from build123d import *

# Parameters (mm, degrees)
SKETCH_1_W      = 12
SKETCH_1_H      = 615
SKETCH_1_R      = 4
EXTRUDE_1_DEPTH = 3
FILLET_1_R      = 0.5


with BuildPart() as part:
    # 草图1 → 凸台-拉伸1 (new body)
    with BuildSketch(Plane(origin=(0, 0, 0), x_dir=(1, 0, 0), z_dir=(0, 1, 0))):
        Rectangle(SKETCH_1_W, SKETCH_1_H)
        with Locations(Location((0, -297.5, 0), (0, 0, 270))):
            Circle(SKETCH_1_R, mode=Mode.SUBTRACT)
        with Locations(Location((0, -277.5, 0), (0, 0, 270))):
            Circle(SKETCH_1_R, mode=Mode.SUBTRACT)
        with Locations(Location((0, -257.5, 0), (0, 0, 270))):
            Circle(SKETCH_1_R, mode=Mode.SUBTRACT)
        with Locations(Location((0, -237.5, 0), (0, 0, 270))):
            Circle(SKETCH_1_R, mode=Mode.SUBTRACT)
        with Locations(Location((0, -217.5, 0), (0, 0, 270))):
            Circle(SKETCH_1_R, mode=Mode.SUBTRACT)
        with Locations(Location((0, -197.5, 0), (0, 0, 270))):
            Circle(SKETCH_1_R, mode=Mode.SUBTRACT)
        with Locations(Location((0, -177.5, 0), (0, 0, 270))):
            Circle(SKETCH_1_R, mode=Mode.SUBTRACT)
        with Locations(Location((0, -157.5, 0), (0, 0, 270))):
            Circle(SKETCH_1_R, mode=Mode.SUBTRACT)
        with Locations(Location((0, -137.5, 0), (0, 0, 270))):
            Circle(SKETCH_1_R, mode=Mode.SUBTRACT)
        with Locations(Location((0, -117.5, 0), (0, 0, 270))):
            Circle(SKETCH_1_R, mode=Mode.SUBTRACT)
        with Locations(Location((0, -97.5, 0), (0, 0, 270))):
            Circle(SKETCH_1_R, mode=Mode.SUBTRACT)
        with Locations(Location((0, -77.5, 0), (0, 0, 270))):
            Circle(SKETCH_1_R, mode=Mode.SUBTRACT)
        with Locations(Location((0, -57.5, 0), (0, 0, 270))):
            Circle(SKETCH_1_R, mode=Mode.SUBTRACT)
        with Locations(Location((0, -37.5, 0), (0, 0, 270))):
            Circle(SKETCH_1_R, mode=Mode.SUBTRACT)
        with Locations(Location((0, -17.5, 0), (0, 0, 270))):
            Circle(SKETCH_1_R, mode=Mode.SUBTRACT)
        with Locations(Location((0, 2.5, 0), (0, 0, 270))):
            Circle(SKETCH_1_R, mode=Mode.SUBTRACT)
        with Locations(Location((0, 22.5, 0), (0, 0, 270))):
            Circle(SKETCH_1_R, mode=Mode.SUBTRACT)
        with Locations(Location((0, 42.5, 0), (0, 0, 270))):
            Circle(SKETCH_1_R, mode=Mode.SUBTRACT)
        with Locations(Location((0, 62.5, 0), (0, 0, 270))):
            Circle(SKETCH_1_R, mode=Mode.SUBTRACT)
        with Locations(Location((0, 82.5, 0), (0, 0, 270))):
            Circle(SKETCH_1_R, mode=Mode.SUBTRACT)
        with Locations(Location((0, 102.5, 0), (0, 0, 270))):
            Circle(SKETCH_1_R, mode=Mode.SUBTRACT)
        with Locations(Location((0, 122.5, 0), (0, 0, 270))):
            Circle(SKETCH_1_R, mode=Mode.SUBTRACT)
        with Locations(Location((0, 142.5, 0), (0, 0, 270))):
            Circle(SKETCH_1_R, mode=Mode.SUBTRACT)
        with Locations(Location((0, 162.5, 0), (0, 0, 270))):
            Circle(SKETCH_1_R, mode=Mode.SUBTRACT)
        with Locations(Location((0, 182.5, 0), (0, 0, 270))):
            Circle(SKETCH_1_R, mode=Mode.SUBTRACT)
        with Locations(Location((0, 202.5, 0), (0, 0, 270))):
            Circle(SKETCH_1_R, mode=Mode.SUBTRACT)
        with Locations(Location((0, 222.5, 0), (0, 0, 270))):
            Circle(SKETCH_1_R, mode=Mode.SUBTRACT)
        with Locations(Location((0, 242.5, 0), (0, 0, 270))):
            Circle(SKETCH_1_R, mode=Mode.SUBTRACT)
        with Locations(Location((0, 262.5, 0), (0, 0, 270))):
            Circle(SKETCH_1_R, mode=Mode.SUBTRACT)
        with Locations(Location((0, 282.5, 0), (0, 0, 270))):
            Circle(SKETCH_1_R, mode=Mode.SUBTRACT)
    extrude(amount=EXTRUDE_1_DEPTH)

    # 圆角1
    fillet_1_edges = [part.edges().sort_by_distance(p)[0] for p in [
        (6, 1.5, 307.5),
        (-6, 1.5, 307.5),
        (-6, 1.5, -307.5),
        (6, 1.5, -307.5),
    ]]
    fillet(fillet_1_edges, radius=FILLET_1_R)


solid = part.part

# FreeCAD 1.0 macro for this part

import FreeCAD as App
import Part
import Sketcher


def edges_at(feature, points):
    """Names of the edges that pass closest to the given points."""
    edges = feature.Shape.Edges
    near = lambda p: min(range(len(edges)), key=lambda i: edges[i].distToShape(Part.Vertex(*p))[0])
    return sorted({f"Edge{near(p) + 1}" for p in points})

doc = App.newDocument("Part")
body = doc.addObject("PartDesign::Body", "Body")

sketch1 = body.newObject("Sketcher::SketchObject", "Sketch")
sketch1.AttachmentSupport = (doc.getObject("XZ_Plane"), [""])
sketch1.MapMode = "FlatFace"
sketch1.addGeometry(Part.LineSegment(App.Vector(-6, -307.5, 0), App.Vector(-6, 307.5, 0)), False)
sketch1.addGeometry(Part.LineSegment(App.Vector(-6, 307.5, 0), App.Vector(6, 307.5, 0)), False)
sketch1.addGeometry(Part.LineSegment(App.Vector(6, 307.5, 0), App.Vector(6, -307.5, 0)), False)
sketch1.addGeometry(Part.LineSegment(App.Vector(6, -307.5, 0), App.Vector(-6, -307.5, 0)), False)
sketch1.addGeometry(Part.Circle(App.Vector(0, 297.5, 0), App.Vector(0, 0, 1), 4), False)
sketch1.addGeometry(Part.Circle(App.Vector(0, 277.5, 0), App.Vector(0, 0, 1), 4), False)
sketch1.addGeometry(Part.Circle(App.Vector(0, 257.5, 0), App.Vector(0, 0, 1), 4), False)
sketch1.addGeometry(Part.Circle(App.Vector(0, 237.5, 0), App.Vector(0, 0, 1), 4), False)
sketch1.addGeometry(Part.Circle(App.Vector(0, 217.5, 0), App.Vector(0, 0, 1), 4), False)
sketch1.addGeometry(Part.Circle(App.Vector(0, 197.5, 0), App.Vector(0, 0, 1), 4), False)
sketch1.addGeometry(Part.Circle(App.Vector(0, 177.5, 0), App.Vector(0, 0, 1), 4), False)
sketch1.addGeometry(Part.Circle(App.Vector(0, 157.5, 0), App.Vector(0, 0, 1), 4), False)
sketch1.addGeometry(Part.Circle(App.Vector(0, 137.5, 0), App.Vector(0, 0, 1), 4), False)
sketch1.addGeometry(Part.Circle(App.Vector(0, 117.5, 0), App.Vector(0, 0, 1), 4), False)
sketch1.addGeometry(Part.Circle(App.Vector(0, 97.5, 0), App.Vector(0, 0, 1), 4), False)
sketch1.addGeometry(Part.Circle(App.Vector(0, 77.5, 0), App.Vector(0, 0, 1), 4), False)
sketch1.addGeometry(Part.Circle(App.Vector(0, 57.5, 0), App.Vector(0, 0, 1), 4), False)
sketch1.addGeometry(Part.Circle(App.Vector(0, 37.5, 0), App.Vector(0, 0, 1), 4), False)
sketch1.addGeometry(Part.Circle(App.Vector(0, 17.5, 0), App.Vector(0, 0, 1), 4), False)
sketch1.addGeometry(Part.Circle(App.Vector(0, -2.5, 0), App.Vector(0, 0, 1), 4), False)
sketch1.addGeometry(Part.Circle(App.Vector(0, -22.5, 0), App.Vector(0, 0, 1), 4), False)
sketch1.addGeometry(Part.Circle(App.Vector(0, -42.5, 0), App.Vector(0, 0, 1), 4), False)
sketch1.addGeometry(Part.Circle(App.Vector(0, -62.5, 0), App.Vector(0, 0, 1), 4), False)
sketch1.addGeometry(Part.Circle(App.Vector(0, -82.5, 0), App.Vector(0, 0, 1), 4), False)
sketch1.addGeometry(Part.Circle(App.Vector(0, -102.5, 0), App.Vector(0, 0, 1), 4), False)
sketch1.addGeometry(Part.Circle(App.Vector(0, -122.5, 0), App.Vector(0, 0, 1), 4), False)
sketch1.addGeometry(Part.Circle(App.Vector(0, -142.5, 0), App.Vector(0, 0, 1), 4), False)
sketch1.addGeometry(Part.Circle(App.Vector(0, -162.5, 0), App.Vector(0, 0, 1), 4), False)
sketch1.addGeometry(Part.Circle(App.Vector(0, -182.5, 0), App.Vector(0, 0, 1), 4), False)
sketch1.addGeometry(Part.Circle(App.Vector(0, -202.5, 0), App.Vector(0, 0, 1), 4), False)
sketch1.addGeometry(Part.Circle(App.Vector(0, -222.5, 0), App.Vector(0, 0, 1), 4), False)
sketch1.addGeometry(Part.Circle(App.Vector(0, -242.5, 0), App.Vector(0, 0, 1), 4), False)
sketch1.addGeometry(Part.Circle(App.Vector(0, -262.5, 0), App.Vector(0, 0, 1), 4), False)
sketch1.addGeometry(Part.Circle(App.Vector(0, -282.5, 0), App.Vector(0, 0, 1), 4), False)
sketch1.addConstraint(Sketcher.Constraint("Coincident", 0, 2, 1, 1))
sketch1.addConstraint(Sketcher.Constraint("Coincident", 1, 2, 2, 1))
sketch1.addConstraint(Sketcher.Constraint("Coincident", 2, 2, 3, 1))
sketch1.addConstraint(Sketcher.Constraint("Coincident", 3, 2, 0, 1))
sketch1.addConstraint(Sketcher.Constraint("Vertical", 0))
sketch1.addConstraint(Sketcher.Constraint("Horizontal", 1))
sketch1.addConstraint(Sketcher.Constraint("Vertical", 2))
sketch1.addConstraint(Sketcher.Constraint("Horizontal", 3))
sketch1.addConstraint(Sketcher.Constraint("Equal", 4, 5))
sketch1.addConstraint(Sketcher.Constraint("Equal", 5, 6))
sketch1.addConstraint(Sketcher.Constraint("Equal", 6, 7))
sketch1.addConstraint(Sketcher.Constraint("Equal", 7, 8))
sketch1.addConstraint(Sketcher.Constraint("Equal", 8, 9))
sketch1.addConstraint(Sketcher.Constraint("Equal", 9, 10))
sketch1.addConstraint(Sketcher.Constraint("Equal", 10, 11))
sketch1.addConstraint(Sketcher.Constraint("Equal", 11, 12))
sketch1.addConstraint(Sketcher.Constraint("Equal", 12, 13))
sketch1.addConstraint(Sketcher.Constraint("Equal", 13, 14))
sketch1.addConstraint(Sketcher.Constraint("Equal", 14, 15))
sketch1.addConstraint(Sketcher.Constraint("Equal", 15, 16))
sketch1.addConstraint(Sketcher.Constraint("Equal", 16, 17))
sketch1.addConstraint(Sketcher.Constraint("Equal", 17, 18))
sketch1.addConstraint(Sketcher.Constraint("Equal", 18, 19))
sketch1.addConstraint(Sketcher.Constraint("Equal", 19, 20))
sketch1.addConstraint(Sketcher.Constraint("Equal", 20, 21))
sketch1.addConstraint(Sketcher.Constraint("Equal", 21, 22))
sketch1.addConstraint(Sketcher.Constraint("Equal", 22, 23))
sketch1.addConstraint(Sketcher.Constraint("Equal", 23, 24))
sketch1.addConstraint(Sketcher.Constraint("Equal", 24, 25))
sketch1.addConstraint(Sketcher.Constraint("Equal", 25, 26))
sketch1.addConstraint(Sketcher.Constraint("Equal", 26, 27))
sketch1.addConstraint(Sketcher.Constraint("Equal", 27, 28))
sketch1.addConstraint(Sketcher.Constraint("Equal", 28, 29))
sketch1.addConstraint(Sketcher.Constraint("Equal", 29, 30))
sketch1.addConstraint(Sketcher.Constraint("Equal", 30, 31))
sketch1.addConstraint(Sketcher.Constraint("Equal", 31, 32))
sketch1.addConstraint(Sketcher.Constraint("Equal", 32, 33))
sketch1.addConstraint(Sketcher.Constraint("Symmetric", 0, 2, 2, 2, -1, 1))
sketch1.addConstraint(Sketcher.Constraint("PointOnObject", 4, 3, -2))
sketch1.addConstraint(Sketcher.Constraint("PointOnObject", 5, 3, -2))
sketch1.addConstraint(Sketcher.Constraint("PointOnObject", 6, 3, -2))
sketch1.addConstraint(Sketcher.Constraint("PointOnObject", 7, 3, -2))
sketch1.addConstraint(Sketcher.Constraint("PointOnObject", 8, 3, -2))
sketch1.addConstraint(Sketcher.Constraint("PointOnObject", 9, 3, -2))
sketch1.addConstraint(Sketcher.Constraint("PointOnObject", 10, 3, -2))
sketch1.addConstraint(Sketcher.Constraint("PointOnObject", 11, 3, -2))
sketch1.addConstraint(Sketcher.Constraint("PointOnObject", 12, 3, -2))
sketch1.addConstraint(Sketcher.Constraint("PointOnObject", 13, 3, -2))
sketch1.addConstraint(Sketcher.Constraint("PointOnObject", 14, 3, -2))
sketch1.addConstraint(Sketcher.Constraint("PointOnObject", 15, 3, -2))
sketch1.addConstraint(Sketcher.Constraint("PointOnObject", 16, 3, -2))
sketch1.addConstraint(Sketcher.Constraint("PointOnObject", 17, 3, -2))
sketch1.addConstraint(Sketcher.Constraint("PointOnObject", 18, 3, -2))
sketch1.addConstraint(Sketcher.Constraint("PointOnObject", 19, 3, -2))
sketch1.addConstraint(Sketcher.Constraint("PointOnObject", 20, 3, -2))
sketch1.addConstraint(Sketcher.Constraint("PointOnObject", 21, 3, -2))
sketch1.addConstraint(Sketcher.Constraint("PointOnObject", 22, 3, -2))
sketch1.addConstraint(Sketcher.Constraint("PointOnObject", 23, 3, -2))
sketch1.addConstraint(Sketcher.Constraint("PointOnObject", 24, 3, -2))
sketch1.addConstraint(Sketcher.Constraint("PointOnObject", 25, 3, -2))
sketch1.addConstraint(Sketcher.Constraint("PointOnObject", 26, 3, -2))
sketch1.addConstraint(Sketcher.Constraint("PointOnObject", 27, 3, -2))
sketch1.addConstraint(Sketcher.Constraint("PointOnObject", 28, 3, -2))
sketch1.addConstraint(Sketcher.Constraint("PointOnObject", 29, 3, -2))
sketch1.addConstraint(Sketcher.Constraint("PointOnObject", 30, 3, -2))
sketch1.addConstraint(Sketcher.Constraint("PointOnObject", 31, 3, -2))
sketch1.addConstraint(Sketcher.Constraint("PointOnObject", 32, 3, -2))
sketch1.addConstraint(Sketcher.Constraint("PointOnObject", 33, 3, -2))
sketch1.addConstraint(Sketcher.Constraint("Diameter", 4, 8.0))
sketch1.addConstraint(Sketcher.Constraint("DistanceX", 1, 1, 1, 2, 12.0))
sketch1.addConstraint(Sketcher.Constraint("DistanceY", 0, 1, 0, 2, 615.0))
sketch1.addConstraint(Sketcher.Constraint("DistanceY", 5, 3, 4, 3, 20.0))
sketch1.addConstraint(Sketcher.Constraint("DistanceY", 6, 3, 5, 3, 20.0))
sketch1.addConstraint(Sketcher.Constraint("DistanceY", 7, 3, 6, 3, 20.0))
sketch1.addConstraint(Sketcher.Constraint("DistanceY", 8, 3, 7, 3, 20.0))
sketch1.addConstraint(Sketcher.Constraint("DistanceY", 9, 3, 8, 3, 20.0))
sketch1.addConstraint(Sketcher.Constraint("DistanceY", 10, 3, 9, 3, 20.0))
sketch1.addConstraint(Sketcher.Constraint("DistanceY", 11, 3, 10, 3, 20.0))
sketch1.addConstraint(Sketcher.Constraint("DistanceY", 12, 3, 11, 3, 20.0))
sketch1.addConstraint(Sketcher.Constraint("DistanceY", 13, 3, 12, 3, 20.0))
sketch1.addConstraint(Sketcher.Constraint("DistanceY", 14, 3, 13, 3, 20.0))
sketch1.addConstraint(Sketcher.Constraint("DistanceY", 15, 3, 14, 3, 20.0))
sketch1.addConstraint(Sketcher.Constraint("DistanceY", 16, 3, 15, 3, 20.0))
sketch1.addConstraint(Sketcher.Constraint("DistanceY", 17, 3, 16, 3, 20.0))
sketch1.addConstraint(Sketcher.Constraint("DistanceY", 18, 3, 17, 3, 20.0))
sketch1.addConstraint(Sketcher.Constraint("DistanceY", 19, 3, 18, 3, 20.0))
sketch1.addConstraint(Sketcher.Constraint("DistanceY", 20, 3, 19, 3, 20.0))
sketch1.addConstraint(Sketcher.Constraint("DistanceY", 21, 3, 20, 3, 20.0))
sketch1.addConstraint(Sketcher.Constraint("DistanceY", 22, 3, 21, 3, 20.0))
sketch1.addConstraint(Sketcher.Constraint("DistanceY", 23, 3, 22, 3, 20.0))
sketch1.addConstraint(Sketcher.Constraint("DistanceY", 24, 3, 23, 3, 20.0))
sketch1.addConstraint(Sketcher.Constraint("DistanceY", 25, 3, 24, 3, 20.0))
sketch1.addConstraint(Sketcher.Constraint("DistanceY", 26, 3, 25, 3, 20.0))
sketch1.addConstraint(Sketcher.Constraint("DistanceY", 27, 3, 26, 3, 20.0))
sketch1.addConstraint(Sketcher.Constraint("DistanceY", 28, 3, 27, 3, 20.0))
sketch1.addConstraint(Sketcher.Constraint("DistanceY", 29, 3, 28, 3, 20.0))
sketch1.addConstraint(Sketcher.Constraint("DistanceY", 30, 3, 29, 3, 20.0))
sketch1.addConstraint(Sketcher.Constraint("DistanceY", 31, 3, 30, 3, 20.0))
sketch1.addConstraint(Sketcher.Constraint("DistanceY", 32, 3, 31, 3, 20.0))
sketch1.addConstraint(Sketcher.Constraint("DistanceY", 33, 3, 32, 3, 20.0))
sketch1.addConstraint(Sketcher.Constraint("DistanceY", 4, 3, 0, 2, 10.0))
pad1 = body.newObject("PartDesign::Pad", "Pad")
pad1.Profile = sketch1
pad1.Length = 3
pad1.Reversed = True
doc.recompute()

fillet = body.newObject("PartDesign::Fillet", "Fillet")
fillet.Base = (pad1, edges_at(pad1, [
    (6, 1.5, 307.5),
    (-6, 1.5, 307.5),
    (-6, 1.5, -307.5),
    (6, 1.5, -307.5),
]))
fillet.Radius = 0.5

doc.recompute()
